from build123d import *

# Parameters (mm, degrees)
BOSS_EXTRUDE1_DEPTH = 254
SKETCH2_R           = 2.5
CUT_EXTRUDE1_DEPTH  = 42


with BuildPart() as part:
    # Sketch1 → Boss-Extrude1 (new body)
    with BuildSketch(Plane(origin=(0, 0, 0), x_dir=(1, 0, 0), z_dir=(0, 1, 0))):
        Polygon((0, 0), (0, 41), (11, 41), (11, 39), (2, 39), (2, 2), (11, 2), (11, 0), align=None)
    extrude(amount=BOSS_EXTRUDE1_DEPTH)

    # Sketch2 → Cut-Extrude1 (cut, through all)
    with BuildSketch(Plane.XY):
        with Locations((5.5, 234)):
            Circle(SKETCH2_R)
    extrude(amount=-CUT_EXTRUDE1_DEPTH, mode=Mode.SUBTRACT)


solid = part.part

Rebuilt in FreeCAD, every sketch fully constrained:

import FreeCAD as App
import Part
import Sketcher


def add_polygon(sketch, points):
    """Adds a closed chain of lines whose ends are joined by coincident constraints."""
    first, n = sketch.GeometryCount, len(points)
    for a, b in zip(points, points[1:] + points[:1]):
        sketch.addGeometry(Part.LineSegment(App.Vector(*a, 0), App.Vector(*b, 0)), False)
    for i in range(n):
        sketch.addConstraint(Sketcher.Constraint("Coincident", first + i, 2, first + (i + 1) % n, 1))

doc = App.newDocument("Part")
params = doc.addObject("Spreadsheet::Sheet", "Params")
for row, (alias, value) in enumerate([
    ("sketch1_width", "11 mm"),
    ("sketch1_width2", "9 mm"),
    ("sketch1_height", "41 mm"),
    ("sketch1_height2", "2 mm"),
    ("pad1_length", "254 mm"),
    ("sketch2_diameter", "5 mm"),
], start=1):
    params.set(f"A{row}", alias)
    params.set(f"B{row}", "=" + value)
    params.setAlias(f"B{row}", alias)

body = doc.addObject("PartDesign::Body", "Body")

# Sketch on XZ plane
sketch1 = body.newObject("Sketcher::SketchObject", "Sketch")
sketch1.AttachmentSupport = (doc.getObject("XZ_Plane"), [""])
sketch1.MapMode = "FlatFace"
add_polygon(sketch1, [(0, -41), (0, 0), (11, 0), (11, -2), (2, -2), (2, -39), (11, -39), (11, -41)])  # lines 0-7
sketch1.addConstraint([
    Sketcher.Constraint("Vertical", 0),
    Sketcher.Constraint("Horizontal", 1),
    Sketcher.Constraint("Vertical", 2),
    Sketcher.Constraint("Horizontal", 3),
    Sketcher.Constraint("Vertical", 4),
    Sketcher.Constraint("Horizontal", 5),
    Sketcher.Constraint("Vertical", 6),
    Sketcher.Constraint("Horizontal", 7),
    Sketcher.Constraint("Coincident", 0, 2, -1, 1),
    Sketcher.Constraint("Vertical", 2, 2, 5, 2),
    Sketcher.Constraint("Equal", 2, 6),
    Sketcher.Constraint("DistanceX", 1, 1, 1, 2, 11.0),
    Sketcher.Constraint("DistanceX", 3, 2, 3, 1, 9.0),
    Sketcher.Constraint("DistanceY", 0, 1, 0, 2, 41.0),
    Sketcher.Constraint("DistanceY", 2, 2, 2, 1, 2.0),
])
sketch1.setExpression("Constraints[19]", "Params.sketch1_width")
sketch1.setExpression("Constraints[20]", "Params.sketch1_width2")
sketch1.setExpression("Constraints[21]", "Params.sketch1_height")
sketch1.setExpression("Constraints[22]", "Params.sketch1_height2")
pad1 = body.newObject("PartDesign::Pad", "Pad")
pad1.Profile = sketch1
pad1.setExpression("Length", "Params.pad1_length")
pad1.Reversed = True

# Sketch on XY plane
sketch2 = body.newObject("Sketcher::SketchObject", "Sketch001")
sketch2.AttachmentSupport = (doc.getObject("XY_Plane"), [""])
sketch2.MapMode = "FlatFace"
sketch2.addGeometry(Part.Circle(App.Vector(5.5, 234, 0), App.Vector(0, 0, 1), 2.5), False)
sketch2.addConstraint([
    Sketcher.Constraint("Diameter", 0, 5.0),
    Sketcher.Constraint("DistanceY", -1, 1, 0, 3, 234.0),
    Sketcher.Constraint("DistanceX", -1, 1, 0, 3, 5.5),
])
sketch2.setExpression("Constraints[0]", "Params.sketch2_diameter")
pocket1 = body.newObject("PartDesign::Pocket", "Pocket")
pocket1.Profile = sketch2
pocket1.Type = "ThroughAll"

doc.recompute()
